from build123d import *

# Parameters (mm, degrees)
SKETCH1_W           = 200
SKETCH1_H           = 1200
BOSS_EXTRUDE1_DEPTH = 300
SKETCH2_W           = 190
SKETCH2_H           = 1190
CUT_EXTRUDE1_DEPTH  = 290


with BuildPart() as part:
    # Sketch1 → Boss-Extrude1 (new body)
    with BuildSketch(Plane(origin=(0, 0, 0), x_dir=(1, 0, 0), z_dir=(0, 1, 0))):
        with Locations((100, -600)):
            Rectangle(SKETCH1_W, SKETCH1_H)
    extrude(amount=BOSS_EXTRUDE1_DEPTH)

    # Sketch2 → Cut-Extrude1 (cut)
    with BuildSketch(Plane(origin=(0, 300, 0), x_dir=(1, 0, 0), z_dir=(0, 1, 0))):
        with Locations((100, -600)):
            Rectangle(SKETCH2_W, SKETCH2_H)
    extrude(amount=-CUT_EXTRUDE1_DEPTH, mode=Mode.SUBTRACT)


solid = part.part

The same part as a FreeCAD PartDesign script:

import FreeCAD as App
import Part
import Sketcher
from FreeCAD import Vector


def add_polygon(sketch, points):
    """Adds a closed chain of lines whose ends are joined by coincident constraints."""
    first, n = sketch.GeometryCount, len(points)
    for a, b in zip(points, points[1:] + points[:1]):
        sketch.addGeometry(Part.LineSegment(App.Vector(*a, 0), App.Vector(*b, 0)), False)
    for i in range(n):
        sketch.addConstraint(Sketcher.Constraint("Coincident", first + i, 2, first + (i + 1) % n, 1))

doc = App.newDocument("Part")
body = doc.addObject("PartDesign::Body", "Body")

sketch1 = body.newObject("Sketcher::SketchObject", "Sketch")
sketch1.AttachmentSupport = (doc.getObject("XZ_Plane"), [""])
sketch1.MapMode = "FlatFace"
add_polygon(sketch1, [(0, 0), (0, 1200), (200, 1200), (200, 0)])
sketch1.addConstraint(Sketcher.Constraint("Vertical", 0))
sketch1.addConstraint(Sketcher.Constraint("Horizontal", 1))
sketch1.addConstraint(Sketcher.Constraint("Vertical", 2))
sketch1.addConstraint(Sketcher.Constraint("Horizontal", 3))
sketch1.addConstraint(Sketcher.Constraint("Coincident", 3, 2, -1, 1))
sketch1.addConstraint(Sketcher.Constraint("DistanceX", 1, 1, 1, 2, 200.0))
sketch1.addConstraint(Sketcher.Constraint("DistanceY", 0, 1, 0, 2, 1200.0))
pad1 = body.newObject("PartDesign::Pad", "Pad")
pad1.Profile = sketch1
pad1.Length = 300
pad1.Reversed = True

sketch2 = body.newObject("Sketcher::SketchObject", "Sketch001")
sketch2.AttachmentSupport = (doc.getObject("XZ_Plane"), [""])
sketch2.MapMode = "FlatFace"
sketch2.AttachmentOffset = App.Placement(Vector(0, 0, -300), App.Rotation())
add_polygon(sketch2, [(5, 5), (5, 1195), (195, 1195), (195, 5)])
sketch2.addConstraint(Sketcher.Constraint("Vertical", 0))
sketch2.addConstraint(Sketcher.Constraint("Horizontal", 1))
sketch2.addConstraint(Sketcher.Constraint("Vertical", 2))
sketch2.addConstraint(Sketcher.Constraint("Horizontal", 3))
sketch2.addConstraint(Sketcher.Constraint("DistanceX", 1, 1, 1, 2, 190.0))
sketch2.addConstraint(Sketcher.Constraint("DistanceY", 0, 1, 0, 2, 1190.0))
sketch2.addConstraint(Sketcher.Constraint("DistanceX", -1, 1, 0, 2, 5.0))
sketch2.addConstraint(Sketcher.Constraint("DistanceY", -1, 1, 0, 2, 1195.0))
pocket1 = body.newObject("PartDesign::Pocket", "Pocket")
pocket1.Profile = sketch2
pocket1.Length = 290
pocket1.Reversed = True

doc.recompute()
